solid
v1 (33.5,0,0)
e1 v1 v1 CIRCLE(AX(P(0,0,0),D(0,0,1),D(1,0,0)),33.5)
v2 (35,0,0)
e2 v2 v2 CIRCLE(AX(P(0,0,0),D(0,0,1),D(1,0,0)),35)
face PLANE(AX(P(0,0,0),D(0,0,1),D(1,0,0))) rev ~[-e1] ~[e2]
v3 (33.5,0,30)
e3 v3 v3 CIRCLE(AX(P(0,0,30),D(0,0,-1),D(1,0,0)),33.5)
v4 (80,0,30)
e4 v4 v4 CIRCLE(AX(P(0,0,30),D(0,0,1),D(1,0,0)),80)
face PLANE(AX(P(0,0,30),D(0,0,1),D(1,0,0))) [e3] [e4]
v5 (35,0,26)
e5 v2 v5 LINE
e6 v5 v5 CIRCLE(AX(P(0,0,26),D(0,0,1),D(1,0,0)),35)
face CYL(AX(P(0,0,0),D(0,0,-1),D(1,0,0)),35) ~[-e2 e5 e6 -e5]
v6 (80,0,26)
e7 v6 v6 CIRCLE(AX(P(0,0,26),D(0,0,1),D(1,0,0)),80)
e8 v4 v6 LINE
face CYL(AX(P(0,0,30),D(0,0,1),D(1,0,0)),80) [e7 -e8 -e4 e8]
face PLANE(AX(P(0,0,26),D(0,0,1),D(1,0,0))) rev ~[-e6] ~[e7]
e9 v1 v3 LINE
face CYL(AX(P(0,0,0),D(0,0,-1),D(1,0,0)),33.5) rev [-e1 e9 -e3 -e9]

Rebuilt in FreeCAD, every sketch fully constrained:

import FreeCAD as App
import Part
import Sketcher

doc = App.newDocument("Part")
body = doc.addObject("PartDesign::Body", "Body")

sketch1 = body.newObject("Sketcher::SketchObject", "Sketch")
sketch1.AttachmentSupport = (doc.getObject("XY_Plane"), [""])
sketch1.MapMode = "FlatFace"
sketch1.addGeometry(Part.Circle(App.Vector(0, 0, 0), App.Vector(0, 0, 1), 35), False)
sketch1.addConstraint(Sketcher.Constraint("Coincident", 0, 3, -1, 1))
sketch1.addConstraint(Sketcher.Constraint("Diameter", 0, 70.0))
pad1 = body.newObject("PartDesign::Pad", "Pad")
pad1.Profile = sketch1
pad1.Length = 30

sketch2 = body.newObject("Sketcher::SketchObject", "Sketch001")
sketch2.AttachmentSupport = (doc.getObject("XY_Plane"), [""])
sketch2.MapMode = "FlatFace"
sketch2.addGeometry(Part.Circle(App.Vector(0, 0, 0), App.Vector(0, 0, 1), 33.5), False)
sketch2.addConstraint(Sketcher.Constraint("Coincident", 0, 3, -1, 1))
sketch2.addConstraint(Sketcher.Constraint("Diameter", 0, 67.0))
pocket1 = body.newObject("PartDesign::Pocket", "Pocket")
pocket1.Profile = sketch2
pocket1.Type = "ThroughAll"
pocket1.Reversed = True

sketch3 = body.newObject("Sketcher::SketchObject", "Sketch002")
sketch3.AttachmentSupport = (doc.getObject("XY_Plane"), [""])
sketch3.MapMode = "FlatFace"
sketch3.AttachmentOffset = App.Placement(App.Vector(0, 0, 30), App.Rotation())
sketch3.addGeometry(Part.Circle(App.Vector(0, 0, 0), App.Vector(0, 0, 1), 80), False)
sketch3.addGeometry(Part.Circle(App.Vector(0, 0, 0), App.Vector(0, 0, 1), 35), False)
sketch3.addConstraint(Sketcher.Constraint("Coincident", 0, 3, -1, 1))
sketch3.addConstraint(Sketcher.Constraint("Coincident", 1, 3, -1, 1))
sketch3.addConstraint(Sketcher.Constraint("Diameter", 0, 160.0))
sketch3.addConstraint(Sketcher.Constraint("Diameter", 1, 70.0))
pad2 = body.newObject("PartDesign::Pad", "Pad001")
pad2.Profile = sketch3
pad2.Length = 4
pad2.Reversed = True

doc.recompute()
